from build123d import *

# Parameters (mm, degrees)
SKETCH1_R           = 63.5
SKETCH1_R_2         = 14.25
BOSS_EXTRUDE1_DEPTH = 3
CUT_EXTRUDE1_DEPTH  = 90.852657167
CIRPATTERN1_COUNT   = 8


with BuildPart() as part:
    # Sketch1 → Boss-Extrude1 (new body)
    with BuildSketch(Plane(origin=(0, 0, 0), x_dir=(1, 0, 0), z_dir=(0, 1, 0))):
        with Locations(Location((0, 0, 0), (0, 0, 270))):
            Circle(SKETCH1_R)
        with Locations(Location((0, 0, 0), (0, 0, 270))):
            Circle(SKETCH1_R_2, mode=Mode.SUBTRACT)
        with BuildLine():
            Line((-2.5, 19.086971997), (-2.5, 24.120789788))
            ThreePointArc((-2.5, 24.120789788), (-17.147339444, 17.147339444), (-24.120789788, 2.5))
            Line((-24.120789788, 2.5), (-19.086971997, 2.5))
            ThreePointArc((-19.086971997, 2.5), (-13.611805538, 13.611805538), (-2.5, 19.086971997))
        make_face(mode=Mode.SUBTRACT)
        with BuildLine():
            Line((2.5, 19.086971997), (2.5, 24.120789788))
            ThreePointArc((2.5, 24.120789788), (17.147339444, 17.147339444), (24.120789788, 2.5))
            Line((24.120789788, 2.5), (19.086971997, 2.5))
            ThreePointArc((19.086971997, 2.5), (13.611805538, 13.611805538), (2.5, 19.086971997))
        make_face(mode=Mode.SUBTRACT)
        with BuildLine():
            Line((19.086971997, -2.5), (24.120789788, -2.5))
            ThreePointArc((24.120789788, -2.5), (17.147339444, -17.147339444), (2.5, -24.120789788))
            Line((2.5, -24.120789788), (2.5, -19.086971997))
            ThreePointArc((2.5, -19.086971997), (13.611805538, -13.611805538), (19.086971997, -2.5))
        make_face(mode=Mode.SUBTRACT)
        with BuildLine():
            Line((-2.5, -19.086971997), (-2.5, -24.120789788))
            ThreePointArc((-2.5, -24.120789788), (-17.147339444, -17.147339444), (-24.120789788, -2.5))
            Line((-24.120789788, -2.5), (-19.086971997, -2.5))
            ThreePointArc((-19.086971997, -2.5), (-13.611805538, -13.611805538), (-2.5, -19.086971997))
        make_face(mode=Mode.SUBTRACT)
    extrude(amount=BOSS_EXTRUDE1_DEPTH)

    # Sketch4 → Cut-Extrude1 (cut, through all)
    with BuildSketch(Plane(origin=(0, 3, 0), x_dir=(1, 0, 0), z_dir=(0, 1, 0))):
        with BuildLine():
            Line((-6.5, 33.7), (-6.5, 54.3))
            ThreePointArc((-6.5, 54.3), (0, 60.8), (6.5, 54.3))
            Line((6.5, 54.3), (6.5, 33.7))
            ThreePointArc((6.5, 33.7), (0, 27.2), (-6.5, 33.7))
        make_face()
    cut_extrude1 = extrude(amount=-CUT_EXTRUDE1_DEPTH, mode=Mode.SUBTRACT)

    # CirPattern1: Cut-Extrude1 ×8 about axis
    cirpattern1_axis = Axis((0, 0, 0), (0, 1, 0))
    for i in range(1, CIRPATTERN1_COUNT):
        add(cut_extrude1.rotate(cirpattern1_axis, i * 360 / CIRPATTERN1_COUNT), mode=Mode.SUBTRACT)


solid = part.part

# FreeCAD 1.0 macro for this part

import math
import FreeCAD as App
import Part
import Sketcher

V = App.Vector

doc = App.newDocument("Part")
body = doc.addObject("PartDesign::Body", "Body")

# Sketch on XZ plane
sketch1 = body.newObject("Sketcher::SketchObject", "Sketch")
sketch1.AttachmentSupport = (doc.getObject("XZ_Plane"), [""])
sketch1.MapMode = "FlatFace"
sketch1.addGeometry(Part.Circle(V(0, 0, 0), V(0, 0, 1), 64), False)
sketch1.addGeometry(Part.LineSegment(V(-2, -24, 0), V(-2, -19, 0)), False)
sketch1.addGeometry(Part.ArcOfCircle(Part.Circle(V(0, 0, 0), V(0, 0, 1), 19), math.radians(-173), math.radians(-97)), False)
sketch1.addGeometry(Part.LineSegment(V(-19, -2, 0), V(-24, -2, 0)), False)
sketch1.addGeometry(Part.ArcOfCircle(Part.Circle(V(0, 0, 0), V(0, 0, 1), 24), math.radians(-174), math.radians(-96)), False)
sketch1.addGeometry(Part.ArcOfCircle(Part.Circle(V(0, 0, 0), V(0, 0, 1), 19), math.radians(97), math.radians(173)), False)
sketch1.addGeometry(Part.LineSegment(V(-2, 19, 0), V(-2, 24, 0)), False)
sketch1.addGeometry(Part.ArcOfCircle(Part.Circle(V(0, 0, 0), V(0, 0, 1), 24), math.radians(96), math.radians(174)), False)
sketch1.addGeometry(Part.LineSegment(V(-24, 2, 0), V(-19, 2, 0)), False)
sketch1.addGeometry(Part.ArcOfCircle(Part.Circle(V(0, 0, 0), V(0, 0, 1), 19), math.radians(-83), math.radians(-7)), False)
sketch1.addGeometry(Part.LineSegment(V(2, -19, 0), V(2, -24, 0)), False)
sketch1.addGeometry(Part.ArcOfCircle(Part.Circle(V(0, 0, 0), V(0, 0, 1), 24), math.radians(-84), math.radians(-6)), False)
sketch1.addGeometry(Part.LineSegment(V(24, -2, 0), V(19, -2, 0)), False)
sketch1.addGeometry(Part.Circle(V(0, 0, 0), V(0, 0, 1), 14), False)
sketch1.addGeometry(Part.ArcOfCircle(Part.Circle(V(0, 0, 0), V(0, 0, 1), 19), math.radians(7), math.radians(83)), False)
sketch1.addGeometry(Part.LineSegment(V(19, 2, 0), V(24, 2, 0)), False)
sketch1.addGeometry(Part.ArcOfCircle(Part.Circle(V(0, 0, 0), V(0, 0, 1), 24), math.radians(6), math.radians(84)), False)
sketch1.addGeometry(Part.LineSegment(V(2, 24, 0), V(2, 19, 0)), False)
sketch1.addConstraint(Sketcher.Constraint("Coincident", 1, 2, 2, 2))
sketch1.addConstraint(Sketcher.Constraint("Coincident", 2, 1, 3, 1))
sketch1.addConstraint(Sketcher.Constraint("Coincident", 3, 2, 4, 1))
sketch1.addConstraint(Sketcher.Constraint("Coincident", 4, 2, 1, 1))
sketch1.addConstraint(Sketcher.Constraint("Coincident", 5, 1, 6, 1))
sketch1.addConstraint(Sketcher.Constraint("Coincident", 6, 2, 7, 1))
sketch1.addConstraint(Sketcher.Constraint("Coincident", 7, 2, 8, 1))
sketch1.addConstraint(Sketcher.Constraint("Coincident", 8, 2, 5, 2))
sketch1.addConstraint(Sketcher.Constraint("Coincident", 9, 1, 10, 1))
sketch1.addConstraint(Sketcher.Constraint("Coincident", 10, 2, 11, 1))
sketch1.addConstraint(Sketcher.Constraint("Coincident", 11, 2, 12, 1))
sketch1.addConstraint(Sketcher.Constraint("Coincident", 12, 2, 9, 2))
sketch1.addConstraint(Sketcher.Constraint("Coincident", 14, 1, 15, 1))
sketch1.addConstraint(Sketcher.Constraint("Coincident", 15, 2, 16, 1))
sketch1.addConstraint(Sketcher.Constraint("Coincident", 16, 2, 17, 1))
sketch1.addConstraint(Sketcher.Constraint("Coincident", 17, 2, 14, 2))
sketch1.addConstraint(Sketcher.Constraint("Vertical", 1))
sketch1.addConstraint(Sketcher.Constraint("Horizontal", 3))
sketch1.addConstraint(Sketcher.Constraint("Vertical", 6))
sketch1.addConstraint(Sketcher.Constraint("Horizontal", 8))
sketch1.addConstraint(Sketcher.Constraint("Vertical", 10))
sketch1.addConstraint(Sketcher.Constraint("Horizontal", 12))
sketch1.addConstraint(Sketcher.Constraint("Horizontal", 15))
sketch1.addConstraint(Sketcher.Constraint("Vertical", 17))
sketch1.addConstraint(Sketcher.Constraint("Coincident", 0, 3, -1, 1))
sketch1.addConstraint(Sketcher.Constraint("Coincident", 2, 3, -1, 1))
sketch1.addConstraint(Sketcher.Constraint("Coincident", 4, 3, -1, 1))
sketch1.addConstraint(Sketcher.Constraint("Coincident", 5, 3, -1, 1))
sketch1.addConstraint(Sketcher.Constraint("Coincident", 7, 3, -1, 1))
sketch1.addConstraint(Sketcher.Constraint("Coincident", 9, 3, -1, 1))
sketch1.addConstraint(Sketcher.Constraint("Coincident", 11, 3, -1, 1))
sketch1.addConstraint(Sketcher.Constraint("Coincident", 13, 3, -1, 1))
sketch1.addConstraint(Sketcher.Constraint("Coincident", 14, 3, -1, 1))
sketch1.addConstraint(Sketcher.Constraint("Coincident", 16, 3, -1, 1))
sketch1.addConstraint(Sketcher.Constraint("Equal", 2, 5))
sketch1.addConstraint(Sketcher.Constraint("Equal", 4, 7))
sketch1.addConstraint(Sketcher.Constraint("Equal", 5, 9))
sketch1.addConstraint(Sketcher.Constraint("Equal", 7, 11))
sketch1.addConstraint(Sketcher.Constraint("Equal", 9, 14))
sketch1.addConstraint(Sketcher.Constraint("Equal", 11, 16))
sketch1.addConstraint(Sketcher.Constraint("Horizontal", 1, 2, 9, 1))
sketch1.addConstraint(Sketcher.Constraint("Horizontal", 3, 2, 11, 2))
sketch1.addConstraint(Sketcher.Constraint("Horizontal", 8, 2, 14, 1))
sketch1.addConstraint(Sketcher.Constraint("Horizontal", 6, 2, 16, 2))
sketch1.addConstraint(Sketcher.Constraint("Vertical", 4, 2, 5, 1))
sketch1.addConstraint(Sketcher.Constraint("Vertical", 3, 2, 7, 2))
sketch1.addConstraint(Sketcher.Constraint("Equal", 15, 1))
sketch1.addConstraint(Sketcher.Constraint("Diameter", 0, 127.0))
sketch1.addConstraint(Sketcher.Constraint("Diameter", 13, 28.5))
sketch1.addConstraint(Sketcher.Constraint("Radius", 2, 19.25))
sketch1.addConstraint(Sketcher.Constraint("Radius", 4, 24.25))
sketch1.addConstraint(Sketcher.Constraint("DistanceY", 3, 2, 7, 2, 5.0))
pad1 = body.newObject("PartDesign::Pad", "Pad")
pad1.Profile = sketch1
pad1.Length = 3
pad1.Reversed = True

# Sketch on XZ plane
sketch2 = body.newObject("Sketcher::SketchObject", "Sketch001")
sketch2.AttachmentSupport = (doc.getObject("XZ_Plane"), [""])
sketch2.MapMode = "FlatFace"
sketch2.AttachmentOffset = App.Placement(V(0, 0, -3), App.Rotation())
sketch2.addGeometry(Part.LineSegment(V(-6, -54, 0), V(-6, -34, 0)), False)
sketch2.addGeometry(Part.ArcOfCircle(Part.Circle(V(0, -34, 0), V(0, 0, 1), 6), math.radians(0), math.radians(180)), False)
sketch2.addGeometry(Part.LineSegment(V(6, -34, 0), V(6, -54, 0)), False)
sketch2.addGeometry(Part.ArcOfCircle(Part.Circle(V(0, -54, 0), V(0, 0, 1), 6), math.radians(180), math.radians(360)), False)
sketch2.addConstraint(Sketcher.Constraint("Tangent", 0, 2, 1, 2))
sketch2.addConstraint(Sketcher.Constraint("Tangent", 1, 1, 2, 1))
sketch2.addConstraint(Sketcher.Constraint("Tangent", 2, 2, 3, 2))
sketch2.addConstraint(Sketcher.Constraint("Tangent", 3, 1, 0, 1))
sketch2.addConstraint(Sketcher.Constraint("Vertical", 0))
sketch2.addConstraint(Sketcher.Constraint("Vertical", 2))
sketch2.addConstraint(Sketcher.Constraint("PointOnObject", 1, 3, -2))
sketch2.addConstraint(Sketcher.Constraint("Radius", 1, 6.5))
sketch2.addConstraint(Sketcher.Constraint("DistanceY", 0, 1, 0, 2, 20.6))
sketch2.addConstraint(Sketcher.Constraint("DistanceY", 1, 3, -1, 1, 33.7))
pocket1 = body.newObject("PartDesign::Pocket", "Pocket")
pocket1.Profile = sketch2
pocket1.Type = "ThroughAll"
pocket1.Reversed = True
doc.recompute()

polarpattern = body.newObject("PartDesign::PolarPattern", "PolarPattern")
polarpattern.Originals = [pocket1]
polarpattern.Axis = (doc.getObject("Y_Axis"), [""])
polarpattern.Angle = 360
polarpattern.Occurrences = 8
body.Tip = polarpattern

doc.recompute()
